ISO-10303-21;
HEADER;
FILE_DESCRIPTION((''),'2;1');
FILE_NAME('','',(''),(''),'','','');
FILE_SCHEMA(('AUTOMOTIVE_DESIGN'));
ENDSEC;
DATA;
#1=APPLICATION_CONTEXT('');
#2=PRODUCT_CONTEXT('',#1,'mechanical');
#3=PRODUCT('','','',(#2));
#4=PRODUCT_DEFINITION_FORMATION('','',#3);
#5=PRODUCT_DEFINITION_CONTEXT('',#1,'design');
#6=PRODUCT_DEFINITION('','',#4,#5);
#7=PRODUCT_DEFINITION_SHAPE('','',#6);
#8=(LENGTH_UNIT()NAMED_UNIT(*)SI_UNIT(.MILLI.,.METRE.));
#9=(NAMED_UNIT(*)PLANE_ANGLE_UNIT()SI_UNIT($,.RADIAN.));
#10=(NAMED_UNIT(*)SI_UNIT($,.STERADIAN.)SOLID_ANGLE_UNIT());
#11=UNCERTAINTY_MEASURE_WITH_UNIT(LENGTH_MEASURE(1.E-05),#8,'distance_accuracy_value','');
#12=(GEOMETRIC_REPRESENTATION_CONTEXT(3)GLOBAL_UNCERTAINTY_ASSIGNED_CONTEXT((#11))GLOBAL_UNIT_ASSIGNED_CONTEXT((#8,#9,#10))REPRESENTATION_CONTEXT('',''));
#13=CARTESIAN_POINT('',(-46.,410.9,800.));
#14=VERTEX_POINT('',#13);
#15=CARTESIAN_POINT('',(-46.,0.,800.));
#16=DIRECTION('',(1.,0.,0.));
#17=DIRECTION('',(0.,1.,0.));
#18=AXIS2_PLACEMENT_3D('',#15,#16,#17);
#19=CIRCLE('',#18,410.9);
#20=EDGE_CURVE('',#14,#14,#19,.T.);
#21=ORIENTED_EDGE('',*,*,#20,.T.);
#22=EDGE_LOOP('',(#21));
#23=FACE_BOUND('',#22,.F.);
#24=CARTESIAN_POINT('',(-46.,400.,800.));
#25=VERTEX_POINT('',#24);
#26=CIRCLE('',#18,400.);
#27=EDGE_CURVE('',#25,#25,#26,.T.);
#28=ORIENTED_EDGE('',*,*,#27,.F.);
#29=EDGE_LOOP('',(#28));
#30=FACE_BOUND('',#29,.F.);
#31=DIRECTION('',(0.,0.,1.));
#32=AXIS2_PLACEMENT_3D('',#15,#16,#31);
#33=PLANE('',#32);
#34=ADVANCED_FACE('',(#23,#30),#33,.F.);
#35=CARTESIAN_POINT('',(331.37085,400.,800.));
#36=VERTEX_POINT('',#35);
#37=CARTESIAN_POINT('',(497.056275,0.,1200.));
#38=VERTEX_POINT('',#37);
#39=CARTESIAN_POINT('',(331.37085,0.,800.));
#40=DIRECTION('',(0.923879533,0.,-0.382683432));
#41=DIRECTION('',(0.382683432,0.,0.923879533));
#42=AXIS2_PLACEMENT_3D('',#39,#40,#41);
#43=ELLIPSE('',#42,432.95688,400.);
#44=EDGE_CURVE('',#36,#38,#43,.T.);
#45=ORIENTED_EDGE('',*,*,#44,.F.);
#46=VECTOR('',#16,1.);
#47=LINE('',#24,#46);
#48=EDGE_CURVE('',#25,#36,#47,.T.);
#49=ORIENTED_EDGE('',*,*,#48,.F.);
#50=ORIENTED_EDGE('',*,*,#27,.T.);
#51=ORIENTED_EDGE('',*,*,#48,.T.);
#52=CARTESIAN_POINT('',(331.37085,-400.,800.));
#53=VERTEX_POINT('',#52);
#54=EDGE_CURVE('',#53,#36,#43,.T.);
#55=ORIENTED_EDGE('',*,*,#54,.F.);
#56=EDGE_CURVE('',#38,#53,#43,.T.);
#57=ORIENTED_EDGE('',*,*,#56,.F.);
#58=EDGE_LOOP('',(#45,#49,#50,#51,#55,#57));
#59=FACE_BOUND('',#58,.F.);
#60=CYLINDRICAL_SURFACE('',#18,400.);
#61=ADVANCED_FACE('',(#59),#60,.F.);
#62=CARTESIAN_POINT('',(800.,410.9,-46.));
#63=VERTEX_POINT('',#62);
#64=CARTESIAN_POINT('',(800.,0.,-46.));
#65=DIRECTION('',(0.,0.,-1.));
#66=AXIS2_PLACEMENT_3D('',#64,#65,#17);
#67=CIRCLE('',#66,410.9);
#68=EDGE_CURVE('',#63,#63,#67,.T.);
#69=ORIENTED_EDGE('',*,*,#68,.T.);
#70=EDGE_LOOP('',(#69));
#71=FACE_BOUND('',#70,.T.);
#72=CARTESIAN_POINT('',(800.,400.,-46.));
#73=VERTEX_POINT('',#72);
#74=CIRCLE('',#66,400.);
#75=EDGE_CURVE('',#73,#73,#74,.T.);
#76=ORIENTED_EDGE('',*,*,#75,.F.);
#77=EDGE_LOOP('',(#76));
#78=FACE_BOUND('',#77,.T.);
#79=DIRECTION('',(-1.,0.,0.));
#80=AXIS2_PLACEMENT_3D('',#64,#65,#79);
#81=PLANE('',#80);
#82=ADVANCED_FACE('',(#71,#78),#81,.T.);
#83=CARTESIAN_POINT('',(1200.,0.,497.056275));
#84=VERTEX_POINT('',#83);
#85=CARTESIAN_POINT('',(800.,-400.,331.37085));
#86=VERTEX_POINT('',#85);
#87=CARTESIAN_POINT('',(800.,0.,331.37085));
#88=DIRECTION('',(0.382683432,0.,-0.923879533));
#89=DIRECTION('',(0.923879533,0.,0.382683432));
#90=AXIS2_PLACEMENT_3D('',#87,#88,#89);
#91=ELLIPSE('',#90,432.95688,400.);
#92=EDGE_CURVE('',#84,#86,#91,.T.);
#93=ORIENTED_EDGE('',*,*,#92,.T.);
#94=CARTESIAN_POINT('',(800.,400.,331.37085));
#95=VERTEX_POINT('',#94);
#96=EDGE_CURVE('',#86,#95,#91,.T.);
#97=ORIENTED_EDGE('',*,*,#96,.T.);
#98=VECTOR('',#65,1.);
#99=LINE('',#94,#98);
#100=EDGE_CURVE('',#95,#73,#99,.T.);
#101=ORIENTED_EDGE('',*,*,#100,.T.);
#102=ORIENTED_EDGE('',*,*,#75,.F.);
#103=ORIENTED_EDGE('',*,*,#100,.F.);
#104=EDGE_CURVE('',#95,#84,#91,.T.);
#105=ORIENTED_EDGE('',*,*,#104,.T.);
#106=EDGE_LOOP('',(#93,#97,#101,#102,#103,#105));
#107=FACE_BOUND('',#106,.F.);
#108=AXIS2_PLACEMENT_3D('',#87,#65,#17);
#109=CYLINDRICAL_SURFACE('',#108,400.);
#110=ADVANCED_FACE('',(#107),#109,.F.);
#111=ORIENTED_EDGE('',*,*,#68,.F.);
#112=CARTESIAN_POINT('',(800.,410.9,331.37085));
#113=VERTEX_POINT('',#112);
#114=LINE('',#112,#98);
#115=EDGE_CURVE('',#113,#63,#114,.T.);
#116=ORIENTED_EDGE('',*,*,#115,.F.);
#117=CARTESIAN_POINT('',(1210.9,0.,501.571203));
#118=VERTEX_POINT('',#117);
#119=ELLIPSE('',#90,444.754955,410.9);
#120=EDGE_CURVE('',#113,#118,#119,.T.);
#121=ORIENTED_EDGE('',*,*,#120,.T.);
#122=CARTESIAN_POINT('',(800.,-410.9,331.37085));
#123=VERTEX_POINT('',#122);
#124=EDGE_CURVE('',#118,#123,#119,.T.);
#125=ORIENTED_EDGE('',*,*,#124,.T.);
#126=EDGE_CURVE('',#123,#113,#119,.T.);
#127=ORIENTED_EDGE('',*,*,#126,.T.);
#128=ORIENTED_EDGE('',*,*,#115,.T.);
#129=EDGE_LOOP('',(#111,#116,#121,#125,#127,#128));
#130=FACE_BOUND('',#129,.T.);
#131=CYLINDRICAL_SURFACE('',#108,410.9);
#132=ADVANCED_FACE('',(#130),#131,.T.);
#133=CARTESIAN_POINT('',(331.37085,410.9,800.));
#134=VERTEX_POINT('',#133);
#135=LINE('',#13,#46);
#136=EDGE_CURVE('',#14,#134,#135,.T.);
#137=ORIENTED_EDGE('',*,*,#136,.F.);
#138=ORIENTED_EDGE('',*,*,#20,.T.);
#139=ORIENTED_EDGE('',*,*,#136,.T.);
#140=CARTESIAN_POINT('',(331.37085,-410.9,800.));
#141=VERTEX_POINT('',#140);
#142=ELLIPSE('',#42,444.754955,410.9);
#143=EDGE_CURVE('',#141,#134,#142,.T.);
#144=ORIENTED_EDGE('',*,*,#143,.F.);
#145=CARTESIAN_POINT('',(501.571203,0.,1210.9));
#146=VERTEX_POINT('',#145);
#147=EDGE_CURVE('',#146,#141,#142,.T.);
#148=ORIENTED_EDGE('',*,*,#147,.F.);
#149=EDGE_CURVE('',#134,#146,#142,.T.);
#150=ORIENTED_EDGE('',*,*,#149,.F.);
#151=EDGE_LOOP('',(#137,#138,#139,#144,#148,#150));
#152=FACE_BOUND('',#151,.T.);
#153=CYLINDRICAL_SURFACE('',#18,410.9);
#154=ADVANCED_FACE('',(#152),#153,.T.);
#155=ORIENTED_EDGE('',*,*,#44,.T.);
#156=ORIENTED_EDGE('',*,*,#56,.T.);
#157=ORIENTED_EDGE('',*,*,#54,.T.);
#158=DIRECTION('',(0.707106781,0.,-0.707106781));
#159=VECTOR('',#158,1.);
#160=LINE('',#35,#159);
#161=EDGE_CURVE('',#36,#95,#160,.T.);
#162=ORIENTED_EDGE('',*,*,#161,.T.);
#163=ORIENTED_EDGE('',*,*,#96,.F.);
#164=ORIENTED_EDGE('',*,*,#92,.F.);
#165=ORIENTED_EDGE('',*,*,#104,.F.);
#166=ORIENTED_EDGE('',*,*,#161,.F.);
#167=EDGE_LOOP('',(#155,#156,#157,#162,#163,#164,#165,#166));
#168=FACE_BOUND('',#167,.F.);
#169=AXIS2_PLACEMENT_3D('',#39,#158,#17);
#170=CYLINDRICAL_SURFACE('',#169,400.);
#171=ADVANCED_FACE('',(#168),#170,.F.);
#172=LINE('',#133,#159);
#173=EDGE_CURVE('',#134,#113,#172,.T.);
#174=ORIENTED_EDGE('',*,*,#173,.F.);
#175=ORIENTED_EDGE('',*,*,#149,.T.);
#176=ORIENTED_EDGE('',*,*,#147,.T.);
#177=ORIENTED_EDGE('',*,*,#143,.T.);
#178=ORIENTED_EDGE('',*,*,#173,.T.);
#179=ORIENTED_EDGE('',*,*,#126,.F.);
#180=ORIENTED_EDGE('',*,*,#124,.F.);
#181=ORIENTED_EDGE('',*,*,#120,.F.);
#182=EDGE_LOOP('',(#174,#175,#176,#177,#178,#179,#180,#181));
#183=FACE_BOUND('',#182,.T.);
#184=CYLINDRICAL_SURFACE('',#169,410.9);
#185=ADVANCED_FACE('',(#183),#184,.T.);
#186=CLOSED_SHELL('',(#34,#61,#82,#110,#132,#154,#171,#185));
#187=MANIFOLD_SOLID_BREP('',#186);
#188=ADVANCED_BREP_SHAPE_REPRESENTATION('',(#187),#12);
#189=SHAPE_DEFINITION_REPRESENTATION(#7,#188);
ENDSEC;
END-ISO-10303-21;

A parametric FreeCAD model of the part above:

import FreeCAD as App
import Part
import Sketcher
from FreeCAD import Vector
Q = App.Units.Quantity

doc = App.newDocument("Part")
body = doc.addObject("PartDesign::Body", "Body")

# Sketch on YZ plane
sketch1 = body.newObject("Sketcher::SketchObject", "Sketch")
sketch1.AttachmentSupport = (doc.getObject("YZ_Plane"), [""])
sketch1.MapMode = "FlatFace"
sketch1.AttachmentOffset = App.Placement(Vector(0, 0, -46), App.Rotation())
sketch1.addGeometry(Part.Circle(Vector(0, 800, 0), Vector(0, 0, 1), 411), False)
sketch1.addGeometry(Part.Circle(Vector(0, 800, 0), Vector(0, 0, 1), 400), False)
sketch1.addConstraint(Sketcher.Constraint("Coincident", 1, 3, 0, 3))
sketch1.addConstraint(Sketcher.Constraint("PointOnObject", 0, 3, -2))
sketch1.addConstraint(Sketcher.Constraint("Diameter", 1, 800.0))
sketch1.addConstraint(Sketcher.Constraint("Diameter", 0, 821.8))
sketch1.addConstraint(Sketcher.Constraint("DistanceY", -1, 1, 0, 3, 800.0))

# Sketch on XZ plane
sketch2 = body.newObject("Sketcher::SketchObject", "Sketch001")
sketch2.AttachmentSupport = (doc.getObject("XZ_Plane"), [""])
sketch2.MapMode = "FlatFace"
sketch2.addGeometry(Part.LineSegment(Vector(-46, 800, 0), Vector(331, 800, 0)), False)
sketch2.addGeometry(Part.LineSegment(Vector(331, 800, 0), Vector(800, 331, 0)), False)
sketch2.addGeometry(Part.LineSegment(Vector(800, 331, 0), Vector(800, -46, 0)), False)
sketch2.addConstraint(Sketcher.Constraint("Coincident", 0, 2, 1, 1))
sketch2.addConstraint(Sketcher.Constraint("Coincident", 1, 2, 2, 1))
sketch2.addConstraint(Sketcher.Constraint("Horizontal", 0))
sketch2.addConstraint(Sketcher.Constraint("Vertical", 2))
sketch2.addConstraint(Sketcher.Constraint("Equal", 0, 2))
sketch2.addConstraint(Sketcher.Constraint("Angle", 1, Q("-45 deg")))
sketch2.addConstraint(Sketcher.Constraint("DistanceX", 0, 1, -1, 1, 46.0))
sketch2.addConstraint(Sketcher.Constraint("DistanceY", -1, 1, 0, 1, 800.0))
sketch2.addConstraint(Sketcher.Constraint("DistanceX", -1, 1, 1, 2, 800.0))
sketch2.addConstraint(Sketcher.Constraint("Distance", 1, 662.7417))
doc.recompute()

additivepipe = body.newObject("PartDesign::AdditivePipe", "AdditivePipe")
additivepipe.Profile = sketch1
additivepipe.Spine = (sketch2, ["Edge1", "Edge2", "Edge3"])
additivepipe.Transition = "Right corner"

doc.recompute()
